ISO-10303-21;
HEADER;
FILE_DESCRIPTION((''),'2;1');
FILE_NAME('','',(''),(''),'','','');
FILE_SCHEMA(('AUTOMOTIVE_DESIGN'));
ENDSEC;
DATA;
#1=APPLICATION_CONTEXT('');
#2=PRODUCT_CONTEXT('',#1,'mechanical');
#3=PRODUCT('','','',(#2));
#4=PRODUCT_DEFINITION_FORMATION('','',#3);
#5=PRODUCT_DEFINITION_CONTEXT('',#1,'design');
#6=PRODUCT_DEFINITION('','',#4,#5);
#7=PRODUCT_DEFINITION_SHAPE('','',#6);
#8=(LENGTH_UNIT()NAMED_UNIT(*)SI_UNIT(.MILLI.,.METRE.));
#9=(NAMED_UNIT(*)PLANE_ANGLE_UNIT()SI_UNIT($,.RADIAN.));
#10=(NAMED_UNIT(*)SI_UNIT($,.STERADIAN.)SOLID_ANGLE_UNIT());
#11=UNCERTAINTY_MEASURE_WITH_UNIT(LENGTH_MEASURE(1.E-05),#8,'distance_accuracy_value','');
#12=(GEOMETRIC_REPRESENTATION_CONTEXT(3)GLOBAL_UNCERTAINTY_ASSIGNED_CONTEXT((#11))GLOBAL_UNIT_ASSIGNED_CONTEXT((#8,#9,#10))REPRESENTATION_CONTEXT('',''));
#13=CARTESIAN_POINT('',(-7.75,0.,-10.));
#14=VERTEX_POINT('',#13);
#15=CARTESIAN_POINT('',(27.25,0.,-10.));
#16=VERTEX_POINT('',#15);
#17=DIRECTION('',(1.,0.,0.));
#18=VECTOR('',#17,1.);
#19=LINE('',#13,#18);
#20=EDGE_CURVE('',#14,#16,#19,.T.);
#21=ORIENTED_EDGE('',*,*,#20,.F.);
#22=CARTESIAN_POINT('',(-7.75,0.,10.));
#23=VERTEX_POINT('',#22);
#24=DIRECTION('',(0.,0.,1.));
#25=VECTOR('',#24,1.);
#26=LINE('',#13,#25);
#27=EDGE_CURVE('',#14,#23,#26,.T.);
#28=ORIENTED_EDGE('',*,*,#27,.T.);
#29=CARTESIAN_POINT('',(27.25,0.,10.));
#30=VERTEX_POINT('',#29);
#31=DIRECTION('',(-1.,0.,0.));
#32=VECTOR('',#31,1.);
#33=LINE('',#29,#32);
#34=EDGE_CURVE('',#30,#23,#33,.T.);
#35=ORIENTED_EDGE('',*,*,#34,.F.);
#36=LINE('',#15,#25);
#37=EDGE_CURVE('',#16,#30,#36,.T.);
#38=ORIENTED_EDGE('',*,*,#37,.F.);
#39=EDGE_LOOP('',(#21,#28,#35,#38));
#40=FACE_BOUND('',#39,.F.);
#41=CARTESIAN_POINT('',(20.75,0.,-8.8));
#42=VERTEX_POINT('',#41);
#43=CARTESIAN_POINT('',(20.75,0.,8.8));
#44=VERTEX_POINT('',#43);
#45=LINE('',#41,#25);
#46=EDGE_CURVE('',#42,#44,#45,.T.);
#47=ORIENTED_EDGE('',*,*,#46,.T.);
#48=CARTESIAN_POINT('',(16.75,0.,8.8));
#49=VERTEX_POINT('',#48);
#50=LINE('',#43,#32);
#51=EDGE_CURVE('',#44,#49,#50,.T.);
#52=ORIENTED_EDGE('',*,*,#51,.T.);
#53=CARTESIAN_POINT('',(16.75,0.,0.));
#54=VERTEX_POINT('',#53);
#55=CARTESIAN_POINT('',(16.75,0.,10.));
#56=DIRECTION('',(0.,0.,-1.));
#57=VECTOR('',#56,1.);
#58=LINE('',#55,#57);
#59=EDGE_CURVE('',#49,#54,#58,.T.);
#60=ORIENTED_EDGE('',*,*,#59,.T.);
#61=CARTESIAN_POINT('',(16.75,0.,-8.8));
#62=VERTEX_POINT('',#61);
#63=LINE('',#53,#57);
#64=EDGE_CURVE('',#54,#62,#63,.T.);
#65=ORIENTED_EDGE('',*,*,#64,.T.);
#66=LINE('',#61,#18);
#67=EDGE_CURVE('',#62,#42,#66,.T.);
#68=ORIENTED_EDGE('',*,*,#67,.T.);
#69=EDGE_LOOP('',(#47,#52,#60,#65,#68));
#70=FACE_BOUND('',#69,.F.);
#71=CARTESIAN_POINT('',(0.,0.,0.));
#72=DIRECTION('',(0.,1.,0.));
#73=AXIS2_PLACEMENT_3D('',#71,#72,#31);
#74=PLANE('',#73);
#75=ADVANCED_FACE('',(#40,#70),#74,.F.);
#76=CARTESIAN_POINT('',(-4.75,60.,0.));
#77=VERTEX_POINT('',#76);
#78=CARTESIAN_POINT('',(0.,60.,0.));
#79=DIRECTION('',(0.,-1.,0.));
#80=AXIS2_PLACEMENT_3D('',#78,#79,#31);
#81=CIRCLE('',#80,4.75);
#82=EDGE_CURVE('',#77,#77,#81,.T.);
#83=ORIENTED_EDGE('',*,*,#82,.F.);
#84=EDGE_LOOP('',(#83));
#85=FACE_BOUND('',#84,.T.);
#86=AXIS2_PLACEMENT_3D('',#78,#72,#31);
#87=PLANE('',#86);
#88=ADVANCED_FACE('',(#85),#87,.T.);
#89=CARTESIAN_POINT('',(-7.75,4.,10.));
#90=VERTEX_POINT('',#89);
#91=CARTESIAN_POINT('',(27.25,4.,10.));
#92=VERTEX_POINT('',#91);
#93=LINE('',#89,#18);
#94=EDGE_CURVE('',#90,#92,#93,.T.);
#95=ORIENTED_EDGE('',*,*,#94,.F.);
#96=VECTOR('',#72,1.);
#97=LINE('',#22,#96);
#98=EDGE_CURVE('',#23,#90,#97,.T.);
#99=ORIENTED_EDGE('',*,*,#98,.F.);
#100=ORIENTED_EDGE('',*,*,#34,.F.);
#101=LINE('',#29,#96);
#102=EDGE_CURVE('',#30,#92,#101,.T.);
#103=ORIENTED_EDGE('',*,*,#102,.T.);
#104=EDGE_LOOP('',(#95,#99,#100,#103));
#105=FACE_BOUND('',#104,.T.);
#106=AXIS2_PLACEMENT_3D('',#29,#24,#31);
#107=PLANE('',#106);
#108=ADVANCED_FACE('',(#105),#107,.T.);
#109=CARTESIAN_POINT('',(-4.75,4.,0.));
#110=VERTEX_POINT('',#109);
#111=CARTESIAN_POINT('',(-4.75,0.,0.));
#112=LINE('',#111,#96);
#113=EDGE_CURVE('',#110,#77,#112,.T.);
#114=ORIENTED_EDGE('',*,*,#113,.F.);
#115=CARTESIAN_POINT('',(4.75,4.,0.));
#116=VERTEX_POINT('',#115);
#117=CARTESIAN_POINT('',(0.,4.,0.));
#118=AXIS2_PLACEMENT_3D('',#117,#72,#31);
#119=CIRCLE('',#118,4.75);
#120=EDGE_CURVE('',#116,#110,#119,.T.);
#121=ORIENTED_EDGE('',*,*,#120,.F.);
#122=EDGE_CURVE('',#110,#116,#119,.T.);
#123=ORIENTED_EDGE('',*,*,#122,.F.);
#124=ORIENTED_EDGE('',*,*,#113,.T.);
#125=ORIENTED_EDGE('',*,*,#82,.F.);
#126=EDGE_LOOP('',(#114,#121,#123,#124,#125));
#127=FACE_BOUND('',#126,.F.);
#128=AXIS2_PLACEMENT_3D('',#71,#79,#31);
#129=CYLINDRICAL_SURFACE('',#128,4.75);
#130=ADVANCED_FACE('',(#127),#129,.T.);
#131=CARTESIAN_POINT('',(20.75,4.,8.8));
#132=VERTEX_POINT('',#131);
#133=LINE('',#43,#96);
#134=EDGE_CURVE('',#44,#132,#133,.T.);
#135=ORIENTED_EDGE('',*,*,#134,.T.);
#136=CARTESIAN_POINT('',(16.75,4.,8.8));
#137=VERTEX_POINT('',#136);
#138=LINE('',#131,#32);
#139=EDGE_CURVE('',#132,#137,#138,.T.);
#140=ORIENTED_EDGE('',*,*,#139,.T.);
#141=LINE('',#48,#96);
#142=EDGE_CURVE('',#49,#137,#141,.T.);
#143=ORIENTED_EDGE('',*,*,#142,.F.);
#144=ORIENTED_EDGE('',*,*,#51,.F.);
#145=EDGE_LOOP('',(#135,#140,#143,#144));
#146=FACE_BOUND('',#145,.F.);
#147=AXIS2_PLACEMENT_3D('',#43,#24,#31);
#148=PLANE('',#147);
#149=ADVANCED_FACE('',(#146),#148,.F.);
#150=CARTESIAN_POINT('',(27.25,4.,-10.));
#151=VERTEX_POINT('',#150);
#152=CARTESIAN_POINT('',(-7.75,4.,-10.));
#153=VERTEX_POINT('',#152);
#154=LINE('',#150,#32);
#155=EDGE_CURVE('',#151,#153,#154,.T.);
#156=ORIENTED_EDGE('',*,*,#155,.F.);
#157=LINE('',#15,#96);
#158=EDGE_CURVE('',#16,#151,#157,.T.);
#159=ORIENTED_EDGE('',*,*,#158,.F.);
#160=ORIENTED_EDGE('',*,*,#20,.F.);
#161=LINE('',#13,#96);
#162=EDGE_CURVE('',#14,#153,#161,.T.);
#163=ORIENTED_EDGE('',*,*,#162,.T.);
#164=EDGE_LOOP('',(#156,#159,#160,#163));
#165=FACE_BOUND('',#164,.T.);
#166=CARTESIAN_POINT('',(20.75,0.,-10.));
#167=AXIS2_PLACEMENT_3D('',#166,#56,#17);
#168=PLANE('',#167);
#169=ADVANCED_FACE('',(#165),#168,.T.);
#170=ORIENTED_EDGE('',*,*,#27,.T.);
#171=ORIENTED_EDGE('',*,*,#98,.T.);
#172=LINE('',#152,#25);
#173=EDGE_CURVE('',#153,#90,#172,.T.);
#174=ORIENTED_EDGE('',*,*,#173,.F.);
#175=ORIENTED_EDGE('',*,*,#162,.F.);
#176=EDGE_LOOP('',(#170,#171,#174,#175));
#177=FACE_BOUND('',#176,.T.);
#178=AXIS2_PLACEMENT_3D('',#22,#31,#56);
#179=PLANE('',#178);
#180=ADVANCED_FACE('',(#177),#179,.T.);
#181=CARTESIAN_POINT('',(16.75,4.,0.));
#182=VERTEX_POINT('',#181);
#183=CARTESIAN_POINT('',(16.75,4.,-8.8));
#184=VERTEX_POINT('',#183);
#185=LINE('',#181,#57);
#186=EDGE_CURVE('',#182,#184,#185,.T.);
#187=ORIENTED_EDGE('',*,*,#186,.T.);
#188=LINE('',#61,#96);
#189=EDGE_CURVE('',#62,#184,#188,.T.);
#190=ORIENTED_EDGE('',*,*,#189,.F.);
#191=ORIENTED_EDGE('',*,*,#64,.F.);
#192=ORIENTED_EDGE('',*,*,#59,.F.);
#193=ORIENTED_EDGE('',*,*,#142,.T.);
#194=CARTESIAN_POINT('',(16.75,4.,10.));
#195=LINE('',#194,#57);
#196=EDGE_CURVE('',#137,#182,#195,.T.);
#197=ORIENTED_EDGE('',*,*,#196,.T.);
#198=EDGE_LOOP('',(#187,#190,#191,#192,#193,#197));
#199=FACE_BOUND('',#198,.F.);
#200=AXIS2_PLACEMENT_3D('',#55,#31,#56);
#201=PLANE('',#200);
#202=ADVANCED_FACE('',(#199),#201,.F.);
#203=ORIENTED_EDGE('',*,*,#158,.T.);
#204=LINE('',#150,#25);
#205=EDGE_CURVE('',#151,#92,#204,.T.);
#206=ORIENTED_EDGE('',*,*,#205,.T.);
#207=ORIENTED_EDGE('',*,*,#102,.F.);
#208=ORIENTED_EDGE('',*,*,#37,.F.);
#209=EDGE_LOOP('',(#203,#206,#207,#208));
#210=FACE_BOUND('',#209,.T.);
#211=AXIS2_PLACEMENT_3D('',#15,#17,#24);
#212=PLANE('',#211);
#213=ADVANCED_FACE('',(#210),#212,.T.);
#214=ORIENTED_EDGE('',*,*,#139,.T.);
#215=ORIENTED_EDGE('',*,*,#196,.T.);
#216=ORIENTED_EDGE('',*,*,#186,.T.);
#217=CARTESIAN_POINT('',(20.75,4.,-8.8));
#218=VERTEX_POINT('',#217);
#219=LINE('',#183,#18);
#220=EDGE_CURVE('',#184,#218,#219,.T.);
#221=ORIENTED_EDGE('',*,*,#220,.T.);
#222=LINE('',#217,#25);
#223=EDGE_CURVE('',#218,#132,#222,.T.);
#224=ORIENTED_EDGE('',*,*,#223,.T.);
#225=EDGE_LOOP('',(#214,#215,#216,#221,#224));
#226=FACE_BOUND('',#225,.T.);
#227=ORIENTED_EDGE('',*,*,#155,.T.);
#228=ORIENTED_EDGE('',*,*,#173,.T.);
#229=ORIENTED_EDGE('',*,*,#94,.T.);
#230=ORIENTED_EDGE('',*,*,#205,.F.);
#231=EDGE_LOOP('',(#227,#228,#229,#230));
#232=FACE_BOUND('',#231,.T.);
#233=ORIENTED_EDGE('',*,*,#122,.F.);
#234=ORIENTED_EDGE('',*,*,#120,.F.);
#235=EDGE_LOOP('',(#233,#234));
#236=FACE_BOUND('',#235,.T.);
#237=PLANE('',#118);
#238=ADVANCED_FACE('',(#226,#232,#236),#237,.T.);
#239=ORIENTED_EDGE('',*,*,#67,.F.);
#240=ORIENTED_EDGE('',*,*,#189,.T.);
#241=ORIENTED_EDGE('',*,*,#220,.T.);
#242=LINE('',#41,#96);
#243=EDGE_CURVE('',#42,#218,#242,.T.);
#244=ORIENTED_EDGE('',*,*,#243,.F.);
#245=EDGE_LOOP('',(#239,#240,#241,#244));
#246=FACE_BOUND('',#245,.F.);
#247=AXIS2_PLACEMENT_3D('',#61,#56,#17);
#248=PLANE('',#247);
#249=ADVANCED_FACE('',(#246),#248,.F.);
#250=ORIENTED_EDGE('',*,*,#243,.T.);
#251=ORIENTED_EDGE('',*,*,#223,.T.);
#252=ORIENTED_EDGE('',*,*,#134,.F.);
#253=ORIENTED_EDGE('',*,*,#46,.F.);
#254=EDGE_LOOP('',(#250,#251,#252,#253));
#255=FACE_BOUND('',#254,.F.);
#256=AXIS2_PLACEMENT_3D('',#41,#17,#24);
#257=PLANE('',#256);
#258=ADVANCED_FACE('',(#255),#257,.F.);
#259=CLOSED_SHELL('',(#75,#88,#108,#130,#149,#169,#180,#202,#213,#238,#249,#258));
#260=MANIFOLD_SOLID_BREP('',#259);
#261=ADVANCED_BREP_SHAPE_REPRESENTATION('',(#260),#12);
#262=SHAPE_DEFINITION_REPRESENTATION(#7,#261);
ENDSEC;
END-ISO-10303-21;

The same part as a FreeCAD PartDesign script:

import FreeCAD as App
import Part
import Sketcher
Q = App.Units.Quantity

doc = App.newDocument("Part")
body = doc.addObject("PartDesign::Body", "Body")

# Sketch on XZ plane
sketch1 = body.newObject("Sketcher::SketchObject", "Sketch")
sketch1.AttachmentSupport = (doc.getObject("XZ_Plane"), [""])
sketch1.MapMode = "FlatFace"
sketch1.addGeometry(Part.Circle(App.Vector(0, 0, 0), App.Vector(0, 0, 1), 4.8), False)
sketch1.addConstraint([
    Sketcher.Constraint("Coincident", 0, 3, -1, 1),
    Sketcher.Constraint("Diameter", 0, Q("9.5 mm")),
])
pad1 = body.newObject("PartDesign::Pad", "Pad")
pad1.Profile = sketch1
pad1.Length = 60
pad1.Reversed = True

# Sketch on XZ plane
sketch2 = body.newObject("Sketcher::SketchObject", "Sketch001")
sketch2.AttachmentSupport = (doc.getObject("XZ_Plane"), [""])
sketch2.MapMode = "FlatFace"
sketch2.addGeometry([
    Part.LineSegment(App.Vector(16.8, 10, 0), App.Vector(16.8, 0, 0)),  # 0
    Part.LineSegment(App.Vector(16.8, 0, 0), App.Vector(16.8, -10, 0)),  # 1
    Part.LineSegment(App.Vector(16.8, -10, 0), App.Vector(-7.8, -10, 0)),  # 2
    Part.LineSegment(App.Vector(-7.8, -10, 0), App.Vector(-7.8, 10, 0)),  # 3
    Part.LineSegment(App.Vector(-7.8, 10, 0), App.Vector(16.8, 10, 0)),  # 4
    Part.Circle(App.Vector(0, 0, 0), App.Vector(0, 0, 1), 4.8),  # 5
], False)
sketch2.addConstraint([
    Sketcher.Constraint("Coincident", 0, 2, 1, 1),
    Sketcher.Constraint("Coincident", 1, 2, 2, 1),
    Sketcher.Constraint("Coincident", 2, 2, 3, 1),
    Sketcher.Constraint("Coincident", 3, 2, 4, 1),
    Sketcher.Constraint("Coincident", 4, 2, 0, 1),
    Sketcher.Constraint("Vertical", 0),
    Sketcher.Constraint("Vertical", 1),
    Sketcher.Constraint("Horizontal", 2),
    Sketcher.Constraint("Vertical", 3),
    Sketcher.Constraint("Horizontal", 4),
    Sketcher.Constraint("Coincident", 5, 3, -1, 1),
    Sketcher.Constraint("PointOnObject", 0, 2, -1),
    Sketcher.Constraint("Equal", 0, 1),
    Sketcher.Constraint("Diameter", 5, Q("9.5 mm")),
    Sketcher.Constraint("DistanceY", 0, 2, 0, 1, Q("10 mm")),
    Sketcher.Constraint("DistanceX", 2, 2, 2, 1, Q("24.5 mm")),
    Sketcher.Constraint("DistanceX", -1, 1, 0, 2, Q("16.75 mm")),
])
pad2 = body.newObject("PartDesign::Pad", "Pad001")
pad2.Profile = sketch2
pad2.Length = 4
pad2.Reversed = True

# Sketch on XZ plane
sketch3 = body.newObject("Sketcher::SketchObject", "Sketch002")
sketch3.AttachmentSupport = (doc.getObject("XZ_Plane"), [""])
sketch3.MapMode = "FlatFace"
sketch3.addGeometry([
    Part.LineSegment(App.Vector(16.8, -10, 0), App.Vector(16.8, -8.8, 0)),
    Part.LineSegment(App.Vector(16.8, -8.8, 0), App.Vector(20.8, -8.8, 0)),
    Part.LineSegment(App.Vector(20.8, -8.8, 0), App.Vector(20.8, -10, 0)),
    Part.LineSegment(App.Vector(20.8, -10, 0), App.Vector(16.8, -10, 0)),
], False)
sketch3.addConstraint([
    Sketcher.Constraint("Coincident", 0, 2, 1, 1),
    Sketcher.Constraint("Coincident", 1, 2, 2, 1),
    Sketcher.Constraint("Coincident", 2, 2, 3, 1),
    Sketcher.Constraint("Coincident", 3, 2, 0, 1),
    Sketcher.Constraint("Vertical", 0),
    Sketcher.Constraint("Horizontal", 1),
    Sketcher.Constraint("Vertical", 2),
    Sketcher.Constraint("Horizontal", 3),
    Sketcher.Constraint("DistanceX", 1, 1, 1, 2, Q("4 mm")),
    Sketcher.Constraint("DistanceY", 0, 1, 0, 2, Q("1.2 mm")),
    Sketcher.Constraint("DistanceY", 2, 2, -1, 1, Q("10 mm")),
    Sketcher.Constraint("DistanceX", -1, 1, 0, 2, Q("16.75 mm")),
])
pad3 = body.newObject("PartDesign::Pad", "Pad002")
pad3.Profile = sketch3
pad3.Length = 4
pad3.Reversed = True

# Sketch on XZ plane
sketch4 = body.newObject("Sketcher::SketchObject", "Sketch003")
sketch4.AttachmentSupport = (doc.getObject("XZ_Plane"), [""])
sketch4.MapMode = "FlatFace"
sketch4.addGeometry([
    Part.LineSegment(App.Vector(20.8, 8.8, 0), App.Vector(16.8, 8.8, 0)),
    Part.LineSegment(App.Vector(16.8, 8.8, 0), App.Vector(16.8, 10, 0)),
    Part.LineSegment(App.Vector(16.8, 10, 0), App.Vector(20.8, 10, 0)),
    Part.LineSegment(App.Vector(20.8, 10, 0), App.Vector(20.8, 8.8, 0)),
], False)
sketch4.addConstraint([
    Sketcher.Constraint("Coincident", 0, 2, 1, 1),
    Sketcher.Constraint("Coincident", 1, 2, 2, 1),
    Sketcher.Constraint("Coincident", 2, 2, 3, 1),
    Sketcher.Constraint("Coincident", 3, 2, 0, 1),
    Sketcher.Constraint("Horizontal", 0),
    Sketcher.Constraint("Vertical", 1),
    Sketcher.Constraint("Horizontal", 2),
    Sketcher.Constraint("Vertical", 3),
    Sketcher.Constraint("DistanceX", 0, 2, 0, 1, Q("4 mm")),
    Sketcher.Constraint("DistanceY", 1, 1, 1, 2, Q("1.2 mm")),
    Sketcher.Constraint("DistanceY", -1, 1, 1, 2, Q("10 mm")),
    Sketcher.Constraint("DistanceX", -1, 1, 0, 2, Q("16.75 mm")),
])
pad4 = body.newObject("PartDesign::Pad", "Pad003")
pad4.Profile = sketch4
pad4.Length = 4
pad4.Reversed = True

# Sketch on XZ plane
sketch5 = body.newObject("Sketcher::SketchObject", "Sketch004")
sketch5.AttachmentSupport = (doc.getObject("XZ_Plane"), [""])
sketch5.MapMode = "FlatFace"
sketch5.addGeometry([
    Part.LineSegment(App.Vector(21, -10, 0), App.Vector(21, 10, 0)),
    Part.LineSegment(App.Vector(21, 10, 0), App.Vector(27, 10, 0)),
    Part.LineSegment(App.Vector(27, 10, 0), App.Vector(27, -10, 0)),
    Part.LineSegment(App.Vector(27, -10, 0), App.Vector(21, -10, 0)),
], False)
sketch5.addConstraint([
    Sketcher.Constraint("Coincident", 0, 2, 1, 1),
    Sketcher.Constraint("Coincident", 1, 2, 2, 1),
    Sketcher.Constraint("Coincident", 2, 2, 3, 1),
    Sketcher.Constraint("Coincident", 3, 2, 0, 1),
    Sketcher.Constraint("Vertical", 0),
    Sketcher.Constraint("Horizontal", 1),
    Sketcher.Constraint("Vertical", 2),
    Sketcher.Constraint("Horizontal", 3),
    Sketcher.Constraint("DistanceY", 0, 1, 0, 2, Q("20 mm")),
    Sketcher.Constraint("DistanceY", -1, 1, 0, 2, Q("10 mm")),
    Sketcher.Constraint("DistanceX", 1, 1, 1, 2, Q("6.5 mm")),
    Sketcher.Constraint("DistanceX", -1, 1, 0, 2, Q("20.75 mm")),
])
pad5 = body.newObject("PartDesign::Pad", "Pad004")
pad5.Profile = sketch5
pad5.Length = 4
pad5.Reversed = True

doc.recompute()
